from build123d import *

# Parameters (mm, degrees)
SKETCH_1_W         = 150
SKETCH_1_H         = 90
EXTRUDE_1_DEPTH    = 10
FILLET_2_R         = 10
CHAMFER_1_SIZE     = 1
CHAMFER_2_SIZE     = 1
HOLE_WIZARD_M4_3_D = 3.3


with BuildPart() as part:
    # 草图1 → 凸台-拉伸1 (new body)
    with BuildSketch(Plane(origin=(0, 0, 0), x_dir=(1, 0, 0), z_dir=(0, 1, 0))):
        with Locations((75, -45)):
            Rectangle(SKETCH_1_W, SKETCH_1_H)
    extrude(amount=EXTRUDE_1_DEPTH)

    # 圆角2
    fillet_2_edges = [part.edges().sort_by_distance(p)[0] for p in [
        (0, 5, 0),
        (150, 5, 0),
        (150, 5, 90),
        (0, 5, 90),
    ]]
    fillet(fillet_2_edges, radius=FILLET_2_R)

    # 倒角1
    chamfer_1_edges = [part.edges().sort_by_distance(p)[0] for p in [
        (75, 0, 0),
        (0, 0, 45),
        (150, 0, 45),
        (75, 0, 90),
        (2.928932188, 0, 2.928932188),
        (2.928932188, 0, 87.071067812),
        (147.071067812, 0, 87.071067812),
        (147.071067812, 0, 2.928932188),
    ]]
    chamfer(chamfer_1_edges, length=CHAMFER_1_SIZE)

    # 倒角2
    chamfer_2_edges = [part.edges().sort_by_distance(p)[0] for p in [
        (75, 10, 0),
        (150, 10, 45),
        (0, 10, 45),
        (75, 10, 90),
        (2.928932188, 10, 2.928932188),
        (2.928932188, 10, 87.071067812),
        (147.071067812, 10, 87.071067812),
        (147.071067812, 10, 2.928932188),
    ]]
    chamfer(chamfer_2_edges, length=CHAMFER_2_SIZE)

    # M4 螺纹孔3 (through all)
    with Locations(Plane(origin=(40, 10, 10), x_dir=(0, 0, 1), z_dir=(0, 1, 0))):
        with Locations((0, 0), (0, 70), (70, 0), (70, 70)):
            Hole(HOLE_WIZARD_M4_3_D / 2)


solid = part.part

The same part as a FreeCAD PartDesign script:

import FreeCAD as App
import Part
import Sketcher
from FreeCAD import Vector
Q = App.Units.Quantity


def edges_at(feature, points):
    """Names of the edges that pass closest to the given points."""
    edges = feature.Shape.Edges
    near = lambda p: min(range(len(edges)), key=lambda i: edges[i].distToShape(Part.Vertex(*p))[0])
    return sorted({f"Edge{near(p) + 1}" for p in points})

doc = App.newDocument("Part")
body = doc.addObject("PartDesign::Body", "Body")

sketch1 = body.newObject("Sketcher::SketchObject", "Sketch")
sketch1.AttachmentSupport = (doc.getObject("XZ_Plane"), [""])
sketch1.MapMode = "FlatFace"
sketch1.addGeometry(Part.LineSegment(Vector(0, 0, 0), Vector(0, 90, 0)), False)
sketch1.addGeometry(Part.LineSegment(Vector(0, 90, 0), Vector(150, 90, 0)), False)
sketch1.addGeometry(Part.LineSegment(Vector(150, 90, 0), Vector(150, 0, 0)), False)
sketch1.addGeometry(Part.LineSegment(Vector(150, 0, 0), Vector(0, 0, 0)), False)
sketch1.addConstraint(Sketcher.Constraint("Coincident", 0, 2, 1, 1))
sketch1.addConstraint(Sketcher.Constraint("Coincident", 1, 2, 2, 1))
sketch1.addConstraint(Sketcher.Constraint("Coincident", 2, 2, 3, 1))
sketch1.addConstraint(Sketcher.Constraint("Coincident", 3, 2, 0, 1))
sketch1.addConstraint(Sketcher.Constraint("Vertical", 0))
sketch1.addConstraint(Sketcher.Constraint("Horizontal", 1))
sketch1.addConstraint(Sketcher.Constraint("Vertical", 2))
sketch1.addConstraint(Sketcher.Constraint("Horizontal", 3))
sketch1.addConstraint(Sketcher.Constraint("Coincident", 3, 2, -1, 1))
sketch1.addConstraint(Sketcher.Constraint("DistanceX", 1, 1, 1, 2, Q("150 mm")))
sketch1.addConstraint(Sketcher.Constraint("DistanceY", 0, 1, 0, 2, Q("90 mm")))
pad1 = body.newObject("PartDesign::Pad", "Pad")
pad1.Profile = sketch1
pad1.Length = 10
pad1.Reversed = True
doc.recompute()

fillet = body.newObject("PartDesign::Fillet", "Fillet")
fillet.Base = (pad1, edges_at(pad1, [
    (0, 5, 0),
    (150, 5, 0),
    (150, 5, 90),
    (0, 5, 90),
]))
fillet.Radius = 10
doc.recompute()

chamfer = body.newObject("PartDesign::Chamfer", "Chamfer")
chamfer.Base = (fillet, edges_at(fillet, [
    (75, 0, 0),
    (0, 0, 45),
    (150, 0, 45),
    (75, 0, 90),
    (2.929, 0, 2.929),
    (2.929, 0, 87.071),
    (147.071, 0, 87.071),
    (147.071, 0, 2.929),
]))
chamfer.Size = 1
doc.recompute()

chamfer2 = body.newObject("PartDesign::Chamfer", "Chamfer001")
chamfer2.Base = (chamfer, edges_at(chamfer, [
    (75, 10, 0),
    (150, 10, 45),
    (0, 10, 45),
    (75, 10, 90),
    (2.929, 10, 2.929),
    (2.929, 10, 87.071),
    (147.071, 10, 87.071),
    (147.071, 10, 2.929),
]))
chamfer2.Size = 1

sketch2 = body.newObject("Sketcher::SketchObject", "Sketch001")
sketch2.AttachmentSupport = (doc.getObject("XZ_Plane"), [""])
sketch2.MapMode = "FlatFace"
sketch2.AttachmentOffset = App.Placement(Vector(0, 0, -10), App.Rotation())
sketch2.addGeometry(Part.Circle(Vector(40, 10, 0), Vector(0, 0, 1), 1.6), False)
sketch2.addGeometry(Part.Circle(Vector(110, 10, 0), Vector(0, 0, 1), 1.6), False)
sketch2.addGeometry(Part.Circle(Vector(40, 80, 0), Vector(0, 0, 1), 1.6), False)
sketch2.addGeometry(Part.Circle(Vector(110, 80, 0), Vector(0, 0, 1), 1.6), False)
sketch2.addConstraint(Sketcher.Constraint("Equal", 0, 1))
sketch2.addConstraint(Sketcher.Constraint("Equal", 1, 2))
sketch2.addConstraint(Sketcher.Constraint("Equal", 2, 3))
sketch2.addConstraint(Sketcher.Constraint("Horizontal", 0, 3, 1, 3))
sketch2.addConstraint(Sketcher.Constraint("Horizontal", 2, 3, 3, 3))
sketch2.addConstraint(Sketcher.Constraint("Vertical", 0, 3, 2, 3))
sketch2.addConstraint(Sketcher.Constraint("Vertical", 1, 3, 3, 3))
sketch2.addConstraint(Sketcher.Constraint("Diameter", 0, Q("3.3 mm")))
sketch2.addConstraint(Sketcher.Constraint("DistanceX", -1, 1, 0, 3, Q("40 mm")))
sketch2.addConstraint(Sketcher.Constraint("DistanceY", -1, 1, 0, 3, Q("10 mm")))
sketch2.addConstraint(Sketcher.Constraint("DistanceX", -1, 1, 1, 3, Q("110 mm")))
sketch2.addConstraint(Sketcher.Constraint("DistanceY", -1, 1, 2, 3, Q("80 mm")))
doc.recompute()
hole = body.newObject("PartDesign::Hole", "Hole")
hole.Profile = sketch2
hole.ThreadType = "None"
hole.Diameter = 3.3
hole.DepthType = "ThroughAll"
hole.Reversed = True

doc.recompute()
